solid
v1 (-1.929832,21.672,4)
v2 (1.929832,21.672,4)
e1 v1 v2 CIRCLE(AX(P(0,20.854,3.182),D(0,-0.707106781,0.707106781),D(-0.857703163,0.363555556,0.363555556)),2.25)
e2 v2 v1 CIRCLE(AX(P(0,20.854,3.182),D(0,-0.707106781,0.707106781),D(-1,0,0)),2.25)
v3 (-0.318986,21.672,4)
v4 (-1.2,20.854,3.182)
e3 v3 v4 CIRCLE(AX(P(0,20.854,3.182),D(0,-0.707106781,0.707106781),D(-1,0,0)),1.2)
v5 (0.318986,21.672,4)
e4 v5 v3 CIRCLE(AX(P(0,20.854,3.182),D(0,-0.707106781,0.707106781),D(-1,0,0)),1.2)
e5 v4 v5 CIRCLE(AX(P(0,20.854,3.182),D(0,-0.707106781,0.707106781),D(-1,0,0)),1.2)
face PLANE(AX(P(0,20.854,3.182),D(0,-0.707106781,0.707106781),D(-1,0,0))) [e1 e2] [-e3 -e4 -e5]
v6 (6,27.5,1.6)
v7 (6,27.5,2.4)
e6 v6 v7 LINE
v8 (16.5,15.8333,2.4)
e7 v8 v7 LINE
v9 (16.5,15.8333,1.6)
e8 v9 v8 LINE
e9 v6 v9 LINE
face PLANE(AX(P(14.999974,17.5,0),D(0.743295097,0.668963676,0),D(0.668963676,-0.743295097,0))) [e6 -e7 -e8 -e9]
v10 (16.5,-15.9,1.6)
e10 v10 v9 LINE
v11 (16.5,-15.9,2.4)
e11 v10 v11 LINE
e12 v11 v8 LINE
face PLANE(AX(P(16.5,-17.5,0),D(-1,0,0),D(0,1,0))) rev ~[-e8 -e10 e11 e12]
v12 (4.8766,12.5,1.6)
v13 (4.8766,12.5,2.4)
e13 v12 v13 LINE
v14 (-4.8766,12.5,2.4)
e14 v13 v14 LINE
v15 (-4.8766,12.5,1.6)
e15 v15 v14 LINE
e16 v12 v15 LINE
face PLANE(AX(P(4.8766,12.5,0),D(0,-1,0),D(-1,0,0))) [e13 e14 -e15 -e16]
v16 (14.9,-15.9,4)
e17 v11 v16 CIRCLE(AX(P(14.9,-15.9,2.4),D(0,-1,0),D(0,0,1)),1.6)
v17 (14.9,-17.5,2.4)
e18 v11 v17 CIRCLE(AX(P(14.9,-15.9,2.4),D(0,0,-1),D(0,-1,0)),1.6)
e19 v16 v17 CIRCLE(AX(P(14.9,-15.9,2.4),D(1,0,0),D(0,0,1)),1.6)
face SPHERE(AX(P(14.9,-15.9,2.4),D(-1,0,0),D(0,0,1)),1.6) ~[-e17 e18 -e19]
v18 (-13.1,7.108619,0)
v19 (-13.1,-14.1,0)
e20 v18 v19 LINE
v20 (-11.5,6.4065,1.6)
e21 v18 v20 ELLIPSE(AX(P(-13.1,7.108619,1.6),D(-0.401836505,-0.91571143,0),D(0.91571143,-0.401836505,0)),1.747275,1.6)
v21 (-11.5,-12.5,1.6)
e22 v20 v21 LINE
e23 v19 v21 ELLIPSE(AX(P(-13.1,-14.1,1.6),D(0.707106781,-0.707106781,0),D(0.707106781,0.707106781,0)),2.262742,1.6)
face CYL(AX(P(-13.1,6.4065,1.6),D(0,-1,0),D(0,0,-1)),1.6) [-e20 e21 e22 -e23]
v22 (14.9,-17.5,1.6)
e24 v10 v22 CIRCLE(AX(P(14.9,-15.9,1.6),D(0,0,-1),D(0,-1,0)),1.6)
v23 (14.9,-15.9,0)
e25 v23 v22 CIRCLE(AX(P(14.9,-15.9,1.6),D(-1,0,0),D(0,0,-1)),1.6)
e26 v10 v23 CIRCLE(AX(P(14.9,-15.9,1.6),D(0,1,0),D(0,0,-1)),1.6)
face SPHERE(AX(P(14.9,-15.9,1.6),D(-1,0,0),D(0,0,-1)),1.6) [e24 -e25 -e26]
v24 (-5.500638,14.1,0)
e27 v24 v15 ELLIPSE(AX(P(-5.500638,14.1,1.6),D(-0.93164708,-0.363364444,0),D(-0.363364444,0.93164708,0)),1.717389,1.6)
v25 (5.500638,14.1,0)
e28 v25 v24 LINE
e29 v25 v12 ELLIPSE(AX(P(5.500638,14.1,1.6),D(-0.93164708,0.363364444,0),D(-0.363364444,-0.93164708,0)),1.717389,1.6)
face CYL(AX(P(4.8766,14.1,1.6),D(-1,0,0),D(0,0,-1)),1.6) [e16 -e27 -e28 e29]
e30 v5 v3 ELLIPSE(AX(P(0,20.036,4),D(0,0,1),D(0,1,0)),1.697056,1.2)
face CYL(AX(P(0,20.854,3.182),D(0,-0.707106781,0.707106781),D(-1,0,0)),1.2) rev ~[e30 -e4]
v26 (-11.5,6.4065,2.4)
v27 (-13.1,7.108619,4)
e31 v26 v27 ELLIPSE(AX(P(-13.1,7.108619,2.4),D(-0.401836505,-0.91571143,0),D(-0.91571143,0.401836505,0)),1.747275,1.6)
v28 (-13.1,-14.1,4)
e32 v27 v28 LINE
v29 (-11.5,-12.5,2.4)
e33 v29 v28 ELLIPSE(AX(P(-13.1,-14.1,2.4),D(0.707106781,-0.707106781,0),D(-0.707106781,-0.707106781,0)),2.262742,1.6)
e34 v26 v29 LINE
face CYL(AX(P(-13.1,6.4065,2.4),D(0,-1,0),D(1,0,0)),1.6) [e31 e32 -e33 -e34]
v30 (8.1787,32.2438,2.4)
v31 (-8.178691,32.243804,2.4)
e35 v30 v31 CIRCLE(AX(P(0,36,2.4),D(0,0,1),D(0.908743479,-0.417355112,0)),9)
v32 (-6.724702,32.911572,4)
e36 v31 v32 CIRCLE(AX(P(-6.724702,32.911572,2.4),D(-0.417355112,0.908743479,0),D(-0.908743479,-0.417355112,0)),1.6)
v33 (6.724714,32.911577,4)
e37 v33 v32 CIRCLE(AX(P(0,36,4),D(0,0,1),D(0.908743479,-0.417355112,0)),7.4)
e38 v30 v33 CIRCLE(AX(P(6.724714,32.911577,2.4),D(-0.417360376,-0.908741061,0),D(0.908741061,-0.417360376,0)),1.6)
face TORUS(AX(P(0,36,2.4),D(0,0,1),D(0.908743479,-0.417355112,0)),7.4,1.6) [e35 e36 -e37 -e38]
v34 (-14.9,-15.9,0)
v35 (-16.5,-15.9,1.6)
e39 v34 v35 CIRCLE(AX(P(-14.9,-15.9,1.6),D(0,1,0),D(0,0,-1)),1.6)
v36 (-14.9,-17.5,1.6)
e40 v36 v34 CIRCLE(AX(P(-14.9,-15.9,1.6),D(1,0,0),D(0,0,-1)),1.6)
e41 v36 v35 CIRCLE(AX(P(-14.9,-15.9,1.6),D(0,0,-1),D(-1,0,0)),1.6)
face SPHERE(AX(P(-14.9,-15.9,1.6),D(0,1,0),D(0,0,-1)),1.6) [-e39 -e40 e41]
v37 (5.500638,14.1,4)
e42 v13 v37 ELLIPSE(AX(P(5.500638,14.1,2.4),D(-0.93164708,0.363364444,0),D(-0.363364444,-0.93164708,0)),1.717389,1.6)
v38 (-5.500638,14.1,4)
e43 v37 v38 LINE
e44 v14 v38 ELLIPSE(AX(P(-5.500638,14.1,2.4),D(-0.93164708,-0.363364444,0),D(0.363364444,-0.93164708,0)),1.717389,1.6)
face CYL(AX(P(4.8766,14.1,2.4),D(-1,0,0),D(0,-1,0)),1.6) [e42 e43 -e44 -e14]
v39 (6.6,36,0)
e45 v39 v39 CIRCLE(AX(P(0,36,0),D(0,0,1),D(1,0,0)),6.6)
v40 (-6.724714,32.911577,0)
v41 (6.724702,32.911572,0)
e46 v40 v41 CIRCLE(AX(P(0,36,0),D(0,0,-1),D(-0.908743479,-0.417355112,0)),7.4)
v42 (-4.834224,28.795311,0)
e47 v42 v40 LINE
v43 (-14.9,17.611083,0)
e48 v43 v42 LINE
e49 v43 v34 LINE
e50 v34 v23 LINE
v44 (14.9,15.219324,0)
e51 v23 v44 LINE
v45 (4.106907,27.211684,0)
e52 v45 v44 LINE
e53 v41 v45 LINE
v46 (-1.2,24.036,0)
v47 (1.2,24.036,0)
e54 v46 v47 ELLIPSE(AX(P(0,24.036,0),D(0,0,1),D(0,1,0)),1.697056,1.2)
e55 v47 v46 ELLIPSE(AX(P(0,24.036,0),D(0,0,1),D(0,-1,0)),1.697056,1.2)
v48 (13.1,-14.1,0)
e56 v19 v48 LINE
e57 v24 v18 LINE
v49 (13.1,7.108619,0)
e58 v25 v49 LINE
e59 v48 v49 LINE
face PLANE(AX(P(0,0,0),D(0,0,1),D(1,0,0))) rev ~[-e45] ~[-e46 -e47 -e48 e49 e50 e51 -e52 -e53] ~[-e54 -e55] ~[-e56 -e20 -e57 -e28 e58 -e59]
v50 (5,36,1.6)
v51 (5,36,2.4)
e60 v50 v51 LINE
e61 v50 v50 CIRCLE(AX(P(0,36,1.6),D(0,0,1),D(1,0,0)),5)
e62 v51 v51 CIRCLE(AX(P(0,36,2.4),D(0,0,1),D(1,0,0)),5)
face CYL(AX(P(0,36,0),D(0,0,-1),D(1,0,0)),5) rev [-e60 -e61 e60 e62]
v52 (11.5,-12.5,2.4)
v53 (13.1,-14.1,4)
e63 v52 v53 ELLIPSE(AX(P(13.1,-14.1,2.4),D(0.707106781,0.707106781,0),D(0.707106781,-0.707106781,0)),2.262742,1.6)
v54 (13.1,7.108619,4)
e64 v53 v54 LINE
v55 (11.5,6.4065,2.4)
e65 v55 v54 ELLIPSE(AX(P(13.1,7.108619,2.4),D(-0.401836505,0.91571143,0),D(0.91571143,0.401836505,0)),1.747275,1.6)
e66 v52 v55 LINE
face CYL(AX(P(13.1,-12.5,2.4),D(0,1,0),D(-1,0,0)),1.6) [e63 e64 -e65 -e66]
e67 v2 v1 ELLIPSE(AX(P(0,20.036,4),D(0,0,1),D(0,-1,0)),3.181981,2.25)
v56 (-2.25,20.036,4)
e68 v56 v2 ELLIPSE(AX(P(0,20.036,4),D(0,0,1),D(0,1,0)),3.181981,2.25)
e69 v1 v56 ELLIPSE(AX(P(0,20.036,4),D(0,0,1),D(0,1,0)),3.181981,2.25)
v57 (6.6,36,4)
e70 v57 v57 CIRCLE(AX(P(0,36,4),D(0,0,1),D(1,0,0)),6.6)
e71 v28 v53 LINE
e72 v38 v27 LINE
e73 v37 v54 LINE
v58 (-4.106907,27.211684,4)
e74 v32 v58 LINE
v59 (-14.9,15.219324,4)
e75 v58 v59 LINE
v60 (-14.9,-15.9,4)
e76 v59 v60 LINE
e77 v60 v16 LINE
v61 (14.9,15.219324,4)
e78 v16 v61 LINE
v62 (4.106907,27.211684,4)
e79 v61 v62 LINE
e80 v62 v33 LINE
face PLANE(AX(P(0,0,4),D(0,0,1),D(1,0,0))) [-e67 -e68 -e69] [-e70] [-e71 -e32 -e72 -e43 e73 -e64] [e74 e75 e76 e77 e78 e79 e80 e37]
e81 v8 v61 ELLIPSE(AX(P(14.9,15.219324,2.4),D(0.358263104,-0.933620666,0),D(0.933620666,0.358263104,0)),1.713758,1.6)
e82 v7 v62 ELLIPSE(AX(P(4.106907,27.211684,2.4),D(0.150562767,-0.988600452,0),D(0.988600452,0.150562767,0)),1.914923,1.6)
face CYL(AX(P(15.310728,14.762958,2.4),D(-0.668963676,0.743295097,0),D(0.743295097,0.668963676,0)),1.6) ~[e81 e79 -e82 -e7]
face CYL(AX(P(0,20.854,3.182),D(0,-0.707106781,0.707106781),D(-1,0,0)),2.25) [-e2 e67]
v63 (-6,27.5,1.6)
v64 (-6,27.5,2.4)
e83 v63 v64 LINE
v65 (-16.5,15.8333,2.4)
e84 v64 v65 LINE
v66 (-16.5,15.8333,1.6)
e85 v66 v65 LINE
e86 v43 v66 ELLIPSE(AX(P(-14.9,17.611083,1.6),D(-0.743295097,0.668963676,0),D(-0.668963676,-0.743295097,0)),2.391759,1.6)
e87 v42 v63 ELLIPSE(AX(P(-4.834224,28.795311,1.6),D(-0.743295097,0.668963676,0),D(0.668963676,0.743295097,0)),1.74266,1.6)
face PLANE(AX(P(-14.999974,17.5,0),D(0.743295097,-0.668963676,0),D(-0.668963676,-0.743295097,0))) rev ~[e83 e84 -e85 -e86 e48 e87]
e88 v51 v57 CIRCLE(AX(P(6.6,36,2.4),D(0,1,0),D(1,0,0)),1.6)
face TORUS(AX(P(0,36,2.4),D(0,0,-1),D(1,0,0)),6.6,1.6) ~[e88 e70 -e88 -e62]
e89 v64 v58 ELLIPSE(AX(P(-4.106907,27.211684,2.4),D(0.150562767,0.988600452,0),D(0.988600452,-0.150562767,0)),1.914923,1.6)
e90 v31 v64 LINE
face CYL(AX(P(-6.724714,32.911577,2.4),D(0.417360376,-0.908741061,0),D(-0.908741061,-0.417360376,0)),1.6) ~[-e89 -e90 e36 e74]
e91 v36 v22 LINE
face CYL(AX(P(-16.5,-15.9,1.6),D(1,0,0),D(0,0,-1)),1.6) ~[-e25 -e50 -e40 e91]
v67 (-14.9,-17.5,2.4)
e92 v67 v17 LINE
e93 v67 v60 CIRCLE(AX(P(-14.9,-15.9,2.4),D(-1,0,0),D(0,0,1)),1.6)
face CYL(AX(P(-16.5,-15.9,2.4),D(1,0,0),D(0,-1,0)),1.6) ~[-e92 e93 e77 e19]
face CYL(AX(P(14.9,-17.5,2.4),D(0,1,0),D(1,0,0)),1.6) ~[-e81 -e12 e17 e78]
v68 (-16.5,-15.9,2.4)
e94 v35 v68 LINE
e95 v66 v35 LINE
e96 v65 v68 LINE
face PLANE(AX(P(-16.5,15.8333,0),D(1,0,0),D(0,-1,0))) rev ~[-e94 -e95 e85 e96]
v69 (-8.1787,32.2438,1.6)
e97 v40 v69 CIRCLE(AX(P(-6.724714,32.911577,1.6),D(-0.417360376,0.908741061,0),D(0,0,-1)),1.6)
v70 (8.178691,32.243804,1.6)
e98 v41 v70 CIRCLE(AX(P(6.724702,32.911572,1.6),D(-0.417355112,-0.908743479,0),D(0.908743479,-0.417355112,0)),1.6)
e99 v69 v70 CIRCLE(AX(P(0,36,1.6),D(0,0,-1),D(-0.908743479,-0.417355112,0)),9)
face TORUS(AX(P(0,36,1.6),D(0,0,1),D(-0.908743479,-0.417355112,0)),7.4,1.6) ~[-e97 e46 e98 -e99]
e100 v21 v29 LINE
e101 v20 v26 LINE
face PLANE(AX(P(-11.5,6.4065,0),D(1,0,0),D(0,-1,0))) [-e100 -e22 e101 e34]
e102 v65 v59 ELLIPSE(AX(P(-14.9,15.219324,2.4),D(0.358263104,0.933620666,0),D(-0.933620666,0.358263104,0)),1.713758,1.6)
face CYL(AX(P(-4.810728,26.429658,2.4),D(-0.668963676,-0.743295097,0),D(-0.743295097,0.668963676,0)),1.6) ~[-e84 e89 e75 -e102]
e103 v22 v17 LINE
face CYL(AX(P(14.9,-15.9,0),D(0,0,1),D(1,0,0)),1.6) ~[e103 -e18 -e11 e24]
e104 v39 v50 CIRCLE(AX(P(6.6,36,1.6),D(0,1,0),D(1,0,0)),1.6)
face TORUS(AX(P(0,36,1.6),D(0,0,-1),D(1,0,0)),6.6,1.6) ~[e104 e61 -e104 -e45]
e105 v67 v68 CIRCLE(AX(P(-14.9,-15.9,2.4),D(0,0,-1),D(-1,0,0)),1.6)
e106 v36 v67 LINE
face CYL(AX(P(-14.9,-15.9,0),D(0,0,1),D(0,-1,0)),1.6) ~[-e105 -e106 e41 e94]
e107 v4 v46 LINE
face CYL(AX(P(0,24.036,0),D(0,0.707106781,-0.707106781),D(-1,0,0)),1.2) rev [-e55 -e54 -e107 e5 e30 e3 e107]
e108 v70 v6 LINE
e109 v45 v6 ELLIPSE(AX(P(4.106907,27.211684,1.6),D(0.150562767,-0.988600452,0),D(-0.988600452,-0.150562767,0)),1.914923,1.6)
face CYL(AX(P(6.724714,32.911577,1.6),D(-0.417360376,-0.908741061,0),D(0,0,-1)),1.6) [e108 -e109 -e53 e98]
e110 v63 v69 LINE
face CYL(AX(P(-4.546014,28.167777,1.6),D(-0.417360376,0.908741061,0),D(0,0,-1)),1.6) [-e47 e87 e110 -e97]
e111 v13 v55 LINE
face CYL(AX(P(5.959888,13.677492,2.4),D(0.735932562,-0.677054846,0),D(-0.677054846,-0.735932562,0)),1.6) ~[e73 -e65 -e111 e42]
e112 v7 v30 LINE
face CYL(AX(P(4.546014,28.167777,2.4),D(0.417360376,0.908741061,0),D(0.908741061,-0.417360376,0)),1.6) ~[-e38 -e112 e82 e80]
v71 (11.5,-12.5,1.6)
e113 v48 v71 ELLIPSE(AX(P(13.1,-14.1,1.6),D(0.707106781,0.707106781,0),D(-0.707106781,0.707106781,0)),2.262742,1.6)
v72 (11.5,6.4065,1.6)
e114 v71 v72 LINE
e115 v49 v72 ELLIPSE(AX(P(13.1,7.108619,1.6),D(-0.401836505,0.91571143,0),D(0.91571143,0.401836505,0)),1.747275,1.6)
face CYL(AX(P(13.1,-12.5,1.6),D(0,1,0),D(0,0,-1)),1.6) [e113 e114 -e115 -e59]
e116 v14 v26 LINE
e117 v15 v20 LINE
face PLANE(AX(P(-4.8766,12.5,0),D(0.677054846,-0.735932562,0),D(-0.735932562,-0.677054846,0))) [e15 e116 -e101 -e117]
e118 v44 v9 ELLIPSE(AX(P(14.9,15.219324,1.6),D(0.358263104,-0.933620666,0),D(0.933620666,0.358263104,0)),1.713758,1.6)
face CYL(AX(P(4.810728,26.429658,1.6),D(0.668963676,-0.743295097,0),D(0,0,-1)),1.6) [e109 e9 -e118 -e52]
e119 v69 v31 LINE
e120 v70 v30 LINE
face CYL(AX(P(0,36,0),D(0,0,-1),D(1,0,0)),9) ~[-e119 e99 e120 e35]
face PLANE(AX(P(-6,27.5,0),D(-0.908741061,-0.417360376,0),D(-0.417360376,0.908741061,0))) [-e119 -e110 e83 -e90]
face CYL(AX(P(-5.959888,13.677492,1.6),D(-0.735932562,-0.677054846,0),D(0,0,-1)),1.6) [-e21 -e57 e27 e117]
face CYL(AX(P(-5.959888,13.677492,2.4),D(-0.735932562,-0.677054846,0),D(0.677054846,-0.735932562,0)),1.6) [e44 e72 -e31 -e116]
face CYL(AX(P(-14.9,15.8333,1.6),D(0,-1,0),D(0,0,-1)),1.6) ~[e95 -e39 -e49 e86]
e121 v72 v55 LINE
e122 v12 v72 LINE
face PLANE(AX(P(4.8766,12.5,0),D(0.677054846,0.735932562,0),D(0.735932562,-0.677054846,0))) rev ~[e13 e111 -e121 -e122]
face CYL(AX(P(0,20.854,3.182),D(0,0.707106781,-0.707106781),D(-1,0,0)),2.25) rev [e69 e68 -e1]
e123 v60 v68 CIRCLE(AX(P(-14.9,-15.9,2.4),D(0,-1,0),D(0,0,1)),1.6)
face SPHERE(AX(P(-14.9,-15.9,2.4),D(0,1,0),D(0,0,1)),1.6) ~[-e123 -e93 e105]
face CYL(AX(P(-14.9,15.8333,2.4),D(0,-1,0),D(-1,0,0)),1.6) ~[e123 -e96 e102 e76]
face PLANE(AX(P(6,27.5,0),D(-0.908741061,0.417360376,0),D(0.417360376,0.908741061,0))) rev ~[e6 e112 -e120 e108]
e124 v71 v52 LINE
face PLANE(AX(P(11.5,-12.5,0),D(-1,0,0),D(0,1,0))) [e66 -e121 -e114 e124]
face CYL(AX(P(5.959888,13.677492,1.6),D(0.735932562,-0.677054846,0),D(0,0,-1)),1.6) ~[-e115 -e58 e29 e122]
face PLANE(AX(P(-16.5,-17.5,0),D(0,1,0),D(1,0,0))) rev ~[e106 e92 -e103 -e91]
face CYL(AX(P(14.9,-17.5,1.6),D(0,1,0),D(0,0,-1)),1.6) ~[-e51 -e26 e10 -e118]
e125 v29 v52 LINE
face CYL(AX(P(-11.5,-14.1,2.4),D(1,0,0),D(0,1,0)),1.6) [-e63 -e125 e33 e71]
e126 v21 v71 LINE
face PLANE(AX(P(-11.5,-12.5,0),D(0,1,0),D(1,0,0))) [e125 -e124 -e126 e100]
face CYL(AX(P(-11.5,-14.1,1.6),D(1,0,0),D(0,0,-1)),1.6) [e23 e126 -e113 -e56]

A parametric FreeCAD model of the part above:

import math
import FreeCAD as App
import Part
import Sketcher
from FreeCAD import Vector


def edges_at(feature, points):
    """Names of the edges that pass closest to the given points."""
    edges = feature.Shape.Edges
    near = lambda p: min(range(len(edges)), key=lambda i: edges[i].distToShape(Part.Vertex(*p))[0])
    return sorted({f"Edge{near(p) + 1}" for p in points})


def add_polygon(sketch, points):
    """Adds a closed chain of lines whose ends are joined by coincident constraints."""
    first, n = sketch.GeometryCount, len(points)
    for a, b in zip(points, points[1:] + points[:1]):
        sketch.addGeometry(Part.LineSegment(App.Vector(*a, 0), App.Vector(*b, 0)), False)
    for i in range(n):
        sketch.addConstraint(Sketcher.Constraint("Coincident", first + i, 2, first + (i + 1) % n, 1))

doc = App.newDocument("Part")
body = doc.addObject("PartDesign::Body", "Body")

sketch1 = body.newObject("Sketcher::SketchObject", "Sketch")
sketch1.AttachmentSupport = (doc.getObject("XY_Plane"), [""])
sketch1.MapMode = "FlatFace"
sketch1.addGeometry(Part.LineSegment(Vector(16, 16, 0), Vector(6, 28, 0)), False)
sketch1.addGeometry(Part.LineSegment(Vector(6, 28, 0), Vector(8, 32, 0)), False)
sketch1.addGeometry(Part.ArcOfCircle(Part.Circle(Vector(0, 36, 0), Vector(0, 0, 1), 9), math.radians(-25), math.radians(205)), False)
sketch1.addGeometry(Part.LineSegment(Vector(-8, 32, 0), Vector(-6, 28, 0)), False)
sketch1.addGeometry(Part.LineSegment(Vector(-6, 28, 0), Vector(-16, 16, 0)), False)
sketch1.addGeometry(Part.LineSegment(Vector(-16, 16, 0), Vector(-16, -18, 0)), False)
sketch1.addGeometry(Part.LineSegment(Vector(-16, -18, 0), Vector(16, -18, 0)), False)
sketch1.addGeometry(Part.LineSegment(Vector(16, -18, 0), Vector(16, 16, 0)), False)
add_polygon(sketch1, [(5, 12), (12, 6), (12, -12), (-12, -12), (-12, 6), (-5, 12)])
sketch1.addGeometry(Part.Circle(Vector(0, 36, 0), Vector(0, 0, 1), 5), False)
sketch1.addConstraint([
    Sketcher.Constraint("Coincident", 0, 2, 1, 1),
    Sketcher.Constraint("Tangent", 1, 2, 2, 1),
    Sketcher.Constraint("Tangent", 2, 2, 3, 1),
    Sketcher.Constraint("Coincident", 3, 2, 4, 1),
    Sketcher.Constraint("Coincident", 4, 2, 5, 1),
    Sketcher.Constraint("Coincident", 5, 2, 6, 1),
    Sketcher.Constraint("Coincident", 6, 2, 7, 1),
    Sketcher.Constraint("Coincident", 7, 2, 0, 1),
    Sketcher.Constraint("Vertical", 5),
    Sketcher.Constraint("Horizontal", 6),
    Sketcher.Constraint("Vertical", 7),
    Sketcher.Constraint("Vertical", 9),
    Sketcher.Constraint("Horizontal", 10),
    Sketcher.Constraint("Vertical", 11),
    Sketcher.Constraint("Horizontal", 13),
    Sketcher.Constraint("Coincident", 14, 3, 2, 3),
    Sketcher.Constraint("Symmetric", 1, 2, 2, 2, -2),
    Sketcher.Constraint("Symmetric", 4, 2, 7, 2, -2),
    Sketcher.Constraint("Symmetric", 8, 2, 11, 2, -2),
    Sketcher.Constraint("Horizontal", 0, 2, 3, 2),
    Sketcher.Constraint("Equal", 8, 12),
    Sketcher.Constraint("Diameter", 14, 10.0),
    Sketcher.Constraint("Radius", 2, 9.0),
    Sketcher.Constraint("DistanceX", 10, 2, 10, 1, 23.0),
    Sketcher.Constraint("Distance", 8, 9.0),
    Sketcher.Constraint("DistanceX", 8, 2, 7, 2, 5.0),
    Sketcher.Constraint("DistanceY", 6, 2, 9, 2, 5.0),
    Sketcher.Constraint("DistanceY", -1, 1, 2, 3, 36.0),
    Sketcher.Constraint("DistanceX", -1, 1, 0, 2, 6.0),
    Sketcher.Constraint("DistanceY", 5, 2, 3, 2, 45.0),
    Sketcher.Constraint("DistanceY", 12, 2, 3, 2, 15.0),
    Sketcher.Constraint("DistanceY", -1, 1, 0, 2, 27.5),
    Sketcher.Constraint("Distance", 0, 15.696),
    Sketcher.Constraint("DistanceX", 13, 1, 13, 2, 9.7532),
])
pad1 = body.newObject("PartDesign::Pad", "Pad")
pad1.Profile = sketch1
pad1.Length = 4

sketch2 = body.newObject("Sketcher::SketchObject", "Sketch001")
sketch2.Placement = App.Placement(Vector(-8.5, 24.036, 0), App.Rotation(Vector(-1, 0, 0), Vector(0, -0.707106781, -0.707106781), Vector(0, -0.707106781, 0.707106781), "ZXY"))
sketch2.addGeometry(Part.Circle(Vector(-8.5, 0, 0), Vector(0, 0, 1), 1.2), False)
sketch2.addConstraint([
    Sketcher.Constraint("PointOnObject", 0, 3, -1),
    Sketcher.Constraint("Diameter", 0, 2.4),
    Sketcher.Constraint("DistanceX", 0, 3, -1, 1, 8.5),
])
pocket1 = body.newObject("PartDesign::Pocket", "Pocket")
pocket1.Profile = sketch2
pocket1.Type = "ThroughAll"
pocket1.Midplane = True

sketch3 = body.newObject("Sketcher::SketchObject", "Sketch002")
sketch3.Placement = App.Placement(Vector(0, 20.854, 3.182), App.Rotation(Vector(-1, 0, 0), Vector(0, -0.707106781, -0.707106781), Vector(0, -0.707106781, 0.707106781), "ZXY"))
sketch3.addGeometry([
    Part.Circle(Vector(0, 0, 0), Vector(0, 0, 1), 2.2),
    Part.Circle(Vector(0, 0, 0), Vector(0, 0, 1), 1.2),
], False)
sketch3.addConstraint([
    Sketcher.Constraint("Coincident", 0, 3, -1, 1),
    Sketcher.Constraint("Coincident", 1, 3, -1, 1),
    Sketcher.Constraint("Diameter", 0, 4.5),
    Sketcher.Constraint("Diameter", 1, 2.4),
])
pocket2 = body.newObject("PartDesign::Pocket", "Pocket001")
pocket2.Profile = sketch3
pocket2.Length = 10.1125
pocket2.Reversed = True

sketch4 = body.newObject("Sketcher::SketchObject", "Sketch003")
sketch4.Placement = App.Placement(Vector(0, 20.854, 3.182), App.Rotation(Vector(-1, 0, 0), Vector(0, -0.707106781, -0.707106781), Vector(0, -0.707106781, 0.707106781), "ZXY"))
sketch4.addGeometry([
    Part.Circle(Vector(0, 0, 0), Vector(0, 0, 1), 2.2),
    Part.Circle(Vector(0, 0, 0), Vector(0, 0, 1), 1.2),
], False)
sketch4.addConstraint([
    Sketcher.Constraint("Coincident", 0, 3, -1, 1),
    Sketcher.Constraint("Coincident", 1, 3, -1, 1),
    Sketcher.Constraint("Diameter", 0, 4.5),
    Sketcher.Constraint("Diameter", 1, 2.4),
])
pad2 = body.newObject("PartDesign::Pad", "Pad001")
pad2.Profile = sketch4
pad2.Length = 1.187
pad2.Reversed = True
doc.recompute()

fillet = body.newObject("PartDesign::Fillet", "Fillet")
fillet.Base = (pad2, edges_at(pad2, [
    (0, 45, 4),
    (-7.089, 29.872, 4),
    (7.089, 29.872, 4),
    (-4.662, 37.808, 4),
    (-4.662, 37.808, 0),
    (0, 45, 0),
    (-7.089, 29.872, 0),
    (7.089, 29.872, 0),
    (-11.25, 21.667, 4),
    (-16.5, -0.833, 4),
    (-16.5, -0.833, 0),
    (0, -17.5, 4),
    (0, -17.5, 0),
    (16.5, -0.833, 4),
    (16.5, -0.833, 0),
    (-8.188, 9.453, 4),
    (0, 12.5, 4),
    (-11.5, -3.047, 4),
    (0, -12.5, 4),
    (11.5, -3.047, 4),
    (8.188, 9.453, 4),
    (11.5, -3.047, 0),
    (0, -12.5, 0),
    (-11.5, -3.047, 0),
    (0, 12.5, 0),
    (-8.188, 9.453, 0),
    (8.188, 9.453, 0),
    (11.25, 21.667, 4),
    (11.25, 21.667, 0),
    (16.5, -17.5, 2),
    (-16.5, -17.5, 2),
]))
fillet.Radius = 1.6

doc.recompute()
